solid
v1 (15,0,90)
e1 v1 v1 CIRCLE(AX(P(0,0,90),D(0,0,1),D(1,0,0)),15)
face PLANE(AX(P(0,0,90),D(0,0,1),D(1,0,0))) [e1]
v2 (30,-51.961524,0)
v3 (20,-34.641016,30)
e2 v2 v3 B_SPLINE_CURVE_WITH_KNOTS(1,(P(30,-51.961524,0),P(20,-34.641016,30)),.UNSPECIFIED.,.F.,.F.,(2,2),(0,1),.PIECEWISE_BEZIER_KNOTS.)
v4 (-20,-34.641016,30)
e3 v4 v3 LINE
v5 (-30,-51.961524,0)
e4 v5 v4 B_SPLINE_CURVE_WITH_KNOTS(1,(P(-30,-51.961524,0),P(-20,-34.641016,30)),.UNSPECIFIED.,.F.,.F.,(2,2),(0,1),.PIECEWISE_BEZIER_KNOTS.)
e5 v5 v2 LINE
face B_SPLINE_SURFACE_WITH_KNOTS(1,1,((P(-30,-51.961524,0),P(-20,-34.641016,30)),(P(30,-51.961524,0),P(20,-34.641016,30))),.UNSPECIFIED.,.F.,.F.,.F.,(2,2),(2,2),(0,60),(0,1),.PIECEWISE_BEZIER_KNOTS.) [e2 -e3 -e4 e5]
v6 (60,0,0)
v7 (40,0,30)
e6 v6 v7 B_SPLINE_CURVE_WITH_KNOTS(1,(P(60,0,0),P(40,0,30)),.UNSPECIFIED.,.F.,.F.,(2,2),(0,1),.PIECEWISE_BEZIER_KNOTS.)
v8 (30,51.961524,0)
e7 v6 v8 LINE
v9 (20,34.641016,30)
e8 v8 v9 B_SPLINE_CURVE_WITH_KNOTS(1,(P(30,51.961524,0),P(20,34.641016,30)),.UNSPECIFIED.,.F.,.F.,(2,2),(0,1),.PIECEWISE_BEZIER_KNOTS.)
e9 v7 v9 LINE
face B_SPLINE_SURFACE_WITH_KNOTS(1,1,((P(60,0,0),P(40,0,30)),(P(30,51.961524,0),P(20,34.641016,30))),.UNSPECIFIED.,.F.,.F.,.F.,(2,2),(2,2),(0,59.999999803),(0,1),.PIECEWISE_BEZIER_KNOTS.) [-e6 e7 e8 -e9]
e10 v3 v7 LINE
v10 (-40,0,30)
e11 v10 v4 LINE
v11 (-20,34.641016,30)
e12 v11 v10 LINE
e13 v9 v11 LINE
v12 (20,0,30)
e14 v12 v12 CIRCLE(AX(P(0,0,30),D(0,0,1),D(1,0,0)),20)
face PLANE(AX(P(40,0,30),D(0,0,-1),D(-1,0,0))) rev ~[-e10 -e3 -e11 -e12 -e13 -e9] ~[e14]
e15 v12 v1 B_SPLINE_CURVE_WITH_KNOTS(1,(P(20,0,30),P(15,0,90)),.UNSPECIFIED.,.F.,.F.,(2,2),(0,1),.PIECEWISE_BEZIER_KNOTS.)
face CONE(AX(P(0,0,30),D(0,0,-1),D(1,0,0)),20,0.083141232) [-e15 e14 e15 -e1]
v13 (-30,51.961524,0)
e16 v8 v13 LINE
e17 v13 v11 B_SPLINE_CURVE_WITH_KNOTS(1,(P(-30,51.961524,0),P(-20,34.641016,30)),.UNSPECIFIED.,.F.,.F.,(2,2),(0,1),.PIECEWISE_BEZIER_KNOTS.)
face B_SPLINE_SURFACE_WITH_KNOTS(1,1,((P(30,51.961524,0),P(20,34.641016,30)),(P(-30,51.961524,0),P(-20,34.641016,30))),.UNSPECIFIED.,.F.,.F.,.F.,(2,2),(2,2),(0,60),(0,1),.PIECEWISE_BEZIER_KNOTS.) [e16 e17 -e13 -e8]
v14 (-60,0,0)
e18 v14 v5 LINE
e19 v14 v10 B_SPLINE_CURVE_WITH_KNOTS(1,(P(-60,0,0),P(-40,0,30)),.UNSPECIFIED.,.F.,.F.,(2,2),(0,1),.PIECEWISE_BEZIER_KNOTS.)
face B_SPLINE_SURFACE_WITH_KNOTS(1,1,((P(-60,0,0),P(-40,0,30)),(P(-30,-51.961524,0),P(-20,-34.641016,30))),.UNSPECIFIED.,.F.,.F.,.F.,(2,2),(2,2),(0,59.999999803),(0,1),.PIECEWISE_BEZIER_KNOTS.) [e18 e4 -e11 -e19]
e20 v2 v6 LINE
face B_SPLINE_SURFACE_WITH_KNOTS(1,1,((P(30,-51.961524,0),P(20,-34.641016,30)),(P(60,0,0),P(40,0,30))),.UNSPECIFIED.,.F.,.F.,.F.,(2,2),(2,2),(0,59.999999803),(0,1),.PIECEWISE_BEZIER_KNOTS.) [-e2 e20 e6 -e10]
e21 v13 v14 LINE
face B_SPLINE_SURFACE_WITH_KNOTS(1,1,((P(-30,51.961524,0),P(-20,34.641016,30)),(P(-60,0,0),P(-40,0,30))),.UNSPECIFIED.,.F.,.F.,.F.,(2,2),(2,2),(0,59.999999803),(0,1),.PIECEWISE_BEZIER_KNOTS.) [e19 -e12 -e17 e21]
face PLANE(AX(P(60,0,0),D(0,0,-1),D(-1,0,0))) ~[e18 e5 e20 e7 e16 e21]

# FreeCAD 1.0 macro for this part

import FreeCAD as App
import Part
import Sketcher
from FreeCAD import Vector
Q = App.Units.Quantity

doc = App.newDocument("Part")
params = doc.addObject("Spreadsheet::Sheet", "Params")
for row, (alias, value) in enumerate([
    ("sketch1_width", "60 mm"),
    ("sketch1_length", "60 mm"),
    ("sketch2_width", "40 mm"),
    ("sketch2_length", "40 mm"),
    ("sketch3_diameter", "40 mm"),
    ("sketch4_diameter", "30 mm"),
], start=1):
    params.set(f"A{row}", alias)
    params.set(f"B{row}", "=" + value)
    params.setAlias(f"B{row}", alias)

body = doc.addObject("PartDesign::Body", "Body")

# Sketch on XY plane
sketch1 = body.newObject("Sketcher::SketchObject", "Sketch")
sketch1.AttachmentSupport = (doc.getObject("XY_Plane"), [""])
sketch1.MapMode = "FlatFace"
sketch1.addGeometry(Part.LineSegment(Vector(60, 0, 0), Vector(30, 51.961524, 0)), False)
sketch1.addGeometry(Part.LineSegment(Vector(30, 51.961524, 0), Vector(-30, 51.961524, 0)), False)
sketch1.addGeometry(Part.LineSegment(Vector(-30, 51.961524, 0), Vector(-60, 0, 0)), False)
sketch1.addGeometry(Part.LineSegment(Vector(-60, 0, 0), Vector(-30, -51.961524, 0)), False)
sketch1.addGeometry(Part.LineSegment(Vector(-30, -51.961524, 0), Vector(30, -51.961524, 0)), False)
sketch1.addGeometry(Part.LineSegment(Vector(30, -51.961524, 0), Vector(60, 0, 0)), False)
sketch1.addConstraint(Sketcher.Constraint("Coincident", 0, 2, 1, 1))
sketch1.addConstraint(Sketcher.Constraint("Coincident", 1, 2, 2, 1))
sketch1.addConstraint(Sketcher.Constraint("Coincident", 2, 2, 3, 1))
sketch1.addConstraint(Sketcher.Constraint("Coincident", 3, 2, 4, 1))
sketch1.addConstraint(Sketcher.Constraint("Coincident", 4, 2, 5, 1))
sketch1.addConstraint(Sketcher.Constraint("Coincident", 5, 2, 0, 1))
sketch1.addConstraint(Sketcher.Constraint("Horizontal", 1))
sketch1.addConstraint(Sketcher.Constraint("Horizontal", 4))
sketch1.addConstraint(Sketcher.Constraint("Symmetric", 0, 2, 3, 2, -1, 1))
sketch1.addConstraint(Sketcher.Constraint("Symmetric", 2, 2, 5, 2, -1, 1))
sketch1.addConstraint(Sketcher.Constraint("PointOnObject", 2, 2, -1))
sketch1.addConstraint(Sketcher.Constraint("Parallel", 2, 5))
sketch1.addConstraint(Sketcher.Constraint("Vertical", 1, 2, 3, 2))
sketch1.addConstraint(Sketcher.Constraint("DistanceX", 1, 2, 1, 1, 60.0))
sketch1.addConstraint(Sketcher.Constraint("Angle", 0, Q("120 deg")))
sketch1.addConstraint(Sketcher.Constraint("Distance", 0, 60.0))
sketch1.setExpression("Constraints[13]", "Params.sketch1_width")
sketch1.setExpression("Constraints[15]", "Params.sketch1_length")

# Sketch on XY plane
sketch2 = body.newObject("Sketcher::SketchObject", "Sketch001")
sketch2.AttachmentSupport = (doc.getObject("XY_Plane"), [""])
sketch2.MapMode = "FlatFace"
sketch2.AttachmentOffset = App.Placement(Vector(0, 0, 30), App.Rotation())
sketch2.addGeometry(Part.LineSegment(Vector(40, 0, 0), Vector(20, 34.641016, 0)), False)
sketch2.addGeometry(Part.LineSegment(Vector(20, 34.641016, 0), Vector(-20, 34.641016, 0)), False)
sketch2.addGeometry(Part.LineSegment(Vector(-20, 34.641016, 0), Vector(-40, 0, 0)), False)
sketch2.addGeometry(Part.LineSegment(Vector(-40, 0, 0), Vector(-20, -34.641016, 0)), False)
sketch2.addGeometry(Part.LineSegment(Vector(-20, -34.641016, 0), Vector(20, -34.641016, 0)), False)
sketch2.addGeometry(Part.LineSegment(Vector(20, -34.641016, 0), Vector(40, 0, 0)), False)
sketch2.addConstraint(Sketcher.Constraint("Coincident", 0, 2, 1, 1))
sketch2.addConstraint(Sketcher.Constraint("Coincident", 1, 2, 2, 1))
sketch2.addConstraint(Sketcher.Constraint("Coincident", 2, 2, 3, 1))
sketch2.addConstraint(Sketcher.Constraint("Coincident", 3, 2, 4, 1))
sketch2.addConstraint(Sketcher.Constraint("Coincident", 4, 2, 5, 1))
sketch2.addConstraint(Sketcher.Constraint("Coincident", 5, 2, 0, 1))
sketch2.addConstraint(Sketcher.Constraint("Horizontal", 1))
sketch2.addConstraint(Sketcher.Constraint("Horizontal", 4))
sketch2.addConstraint(Sketcher.Constraint("Symmetric", 0, 2, 3, 2, -1, 1))
sketch2.addConstraint(Sketcher.Constraint("Symmetric", 2, 2, 5, 2, -1, 1))
sketch2.addConstraint(Sketcher.Constraint("PointOnObject", 2, 2, -1))
sketch2.addConstraint(Sketcher.Constraint("Parallel", 2, 5))
sketch2.addConstraint(Sketcher.Constraint("Vertical", 1, 2, 3, 2))
sketch2.addConstraint(Sketcher.Constraint("DistanceX", 1, 2, 1, 1, 40.0))
sketch2.addConstraint(Sketcher.Constraint("Angle", 0, Q("120 deg")))
sketch2.addConstraint(Sketcher.Constraint("Distance", 0, 40.0))
sketch2.setExpression("Constraints[13]", "Params.sketch2_width")
sketch2.setExpression("Constraints[15]", "Params.sketch2_length")

additiveloft = body.newObject("PartDesign::AdditiveLoft", "AdditiveLoft")
additiveloft.Profile = sketch1
additiveloft.Sections = [sketch2]

# Sketch on XY plane
sketch3 = body.newObject("Sketcher::SketchObject", "Sketch002")
sketch3.AttachmentSupport = (doc.getObject("XY_Plane"), [""])
sketch3.MapMode = "FlatFace"
sketch3.AttachmentOffset = App.Placement(Vector(0, 0, 30), App.Rotation())
sketch3.addGeometry(Part.Circle(Vector(0, 0, 0), Vector(0, 0, 1), 20), False)
sketch3.addConstraint(Sketcher.Constraint("Coincident", 0, 3, -1, 1))
sketch3.addConstraint(Sketcher.Constraint("Diameter", 0, 40.0))
sketch3.setExpression("Constraints[1]", "Params.sketch3_diameter")

# Sketch on XY plane
sketch4 = body.newObject("Sketcher::SketchObject", "Sketch003")
sketch4.AttachmentSupport = (doc.getObject("XY_Plane"), [""])
sketch4.MapMode = "FlatFace"
sketch4.AttachmentOffset = App.Placement(Vector(0, 0, 90), App.Rotation())
sketch4.addGeometry(Part.Circle(Vector(0, 0, 0), Vector(0, 0, 1), 15), False)
sketch4.addConstraint(Sketcher.Constraint("Coincident", 0, 3, -1, 1))
sketch4.addConstraint(Sketcher.Constraint("Diameter", 0, 30.0))
sketch4.setExpression("Constraints[1]", "Params.sketch4_diameter")

additiveloft2 = body.newObject("PartDesign::AdditiveLoft", "AdditiveLoft001")
additiveloft2.Profile = sketch3
additiveloft2.Sections = [sketch4]

doc.recompute()
